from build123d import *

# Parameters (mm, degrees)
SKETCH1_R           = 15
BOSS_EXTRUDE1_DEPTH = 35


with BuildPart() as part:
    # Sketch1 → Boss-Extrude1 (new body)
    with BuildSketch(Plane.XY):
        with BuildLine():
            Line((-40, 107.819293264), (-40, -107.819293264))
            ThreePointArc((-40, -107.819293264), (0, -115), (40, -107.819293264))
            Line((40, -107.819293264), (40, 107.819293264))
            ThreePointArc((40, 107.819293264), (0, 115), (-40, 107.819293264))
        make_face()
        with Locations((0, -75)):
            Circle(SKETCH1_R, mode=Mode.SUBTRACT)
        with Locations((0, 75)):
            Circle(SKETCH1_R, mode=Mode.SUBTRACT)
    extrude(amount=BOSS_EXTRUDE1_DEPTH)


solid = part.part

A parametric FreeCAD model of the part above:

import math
import FreeCAD as App
import Part
import Sketcher
Q = App.Units.Quantity

doc = App.newDocument("Part")
body = doc.addObject("PartDesign::Body", "Body")

# Sketch on XY plane
sketch1 = body.newObject("Sketcher::SketchObject", "Sketch")
sketch1.AttachmentSupport = (doc.getObject("XY_Plane"), [""])
sketch1.MapMode = "FlatFace"
sketch1.addGeometry(Part.LineSegment(App.Vector(-40, 108, 0), App.Vector(-40, -108, 0)), False)
sketch1.addGeometry(Part.ArcOfCircle(Part.Circle(App.Vector(0, 0, 0), App.Vector(0, 0, 1), 115), math.radians(-110), math.radians(-70)), False)
sketch1.addGeometry(Part.LineSegment(App.Vector(40, -108, 0), App.Vector(40, 108, 0)), False)
sketch1.addGeometry(Part.ArcOfCircle(Part.Circle(App.Vector(0, 0, 0), App.Vector(0, 0, 1), 115), math.radians(70), math.radians(110)), False)
sketch1.addGeometry(Part.Circle(App.Vector(0, -75, 0), App.Vector(0, 0, 1), 15), False)
sketch1.addGeometry(Part.Circle(App.Vector(0, 75, 0), App.Vector(0, 0, 1), 15), False)
sketch1.addConstraint(Sketcher.Constraint("Coincident", 0, 2, 1, 1))
sketch1.addConstraint(Sketcher.Constraint("Coincident", 1, 2, 2, 1))
sketch1.addConstraint(Sketcher.Constraint("Coincident", 2, 2, 3, 1))
sketch1.addConstraint(Sketcher.Constraint("Coincident", 3, 2, 0, 1))
sketch1.addConstraint(Sketcher.Constraint("Vertical", 0))
sketch1.addConstraint(Sketcher.Constraint("Vertical", 2))
sketch1.addConstraint(Sketcher.Constraint("Coincident", 1, 3, -1, 1))
sketch1.addConstraint(Sketcher.Constraint("Coincident", 3, 3, -1, 1))
sketch1.addConstraint(Sketcher.Constraint("Equal", 1, 3))
sketch1.addConstraint(Sketcher.Constraint("Equal", 4, 5))
sketch1.addConstraint(Sketcher.Constraint("Symmetric", 4, 3, 5, 3, -1, 1))
sketch1.addConstraint(Sketcher.Constraint("PointOnObject", 4, 3, -2))
sketch1.addConstraint(Sketcher.Constraint("Horizontal", 0, 2, 1, 2))
sketch1.addConstraint(Sketcher.Constraint("Diameter", 4, Q("30 mm")))
sketch1.addConstraint(Sketcher.Constraint("Radius", 1, Q("115 mm")))
sketch1.addConstraint(Sketcher.Constraint("DistanceY", 4, 3, -1, 1, Q("75 mm")))
sketch1.addConstraint(Sketcher.Constraint("DistanceX", 0, 2, -1, 1, Q("40 mm")))
pad1 = body.newObject("PartDesign::Pad", "Pad")
pad1.Profile = sketch1
pad1.Length = 35

doc.recompute()
